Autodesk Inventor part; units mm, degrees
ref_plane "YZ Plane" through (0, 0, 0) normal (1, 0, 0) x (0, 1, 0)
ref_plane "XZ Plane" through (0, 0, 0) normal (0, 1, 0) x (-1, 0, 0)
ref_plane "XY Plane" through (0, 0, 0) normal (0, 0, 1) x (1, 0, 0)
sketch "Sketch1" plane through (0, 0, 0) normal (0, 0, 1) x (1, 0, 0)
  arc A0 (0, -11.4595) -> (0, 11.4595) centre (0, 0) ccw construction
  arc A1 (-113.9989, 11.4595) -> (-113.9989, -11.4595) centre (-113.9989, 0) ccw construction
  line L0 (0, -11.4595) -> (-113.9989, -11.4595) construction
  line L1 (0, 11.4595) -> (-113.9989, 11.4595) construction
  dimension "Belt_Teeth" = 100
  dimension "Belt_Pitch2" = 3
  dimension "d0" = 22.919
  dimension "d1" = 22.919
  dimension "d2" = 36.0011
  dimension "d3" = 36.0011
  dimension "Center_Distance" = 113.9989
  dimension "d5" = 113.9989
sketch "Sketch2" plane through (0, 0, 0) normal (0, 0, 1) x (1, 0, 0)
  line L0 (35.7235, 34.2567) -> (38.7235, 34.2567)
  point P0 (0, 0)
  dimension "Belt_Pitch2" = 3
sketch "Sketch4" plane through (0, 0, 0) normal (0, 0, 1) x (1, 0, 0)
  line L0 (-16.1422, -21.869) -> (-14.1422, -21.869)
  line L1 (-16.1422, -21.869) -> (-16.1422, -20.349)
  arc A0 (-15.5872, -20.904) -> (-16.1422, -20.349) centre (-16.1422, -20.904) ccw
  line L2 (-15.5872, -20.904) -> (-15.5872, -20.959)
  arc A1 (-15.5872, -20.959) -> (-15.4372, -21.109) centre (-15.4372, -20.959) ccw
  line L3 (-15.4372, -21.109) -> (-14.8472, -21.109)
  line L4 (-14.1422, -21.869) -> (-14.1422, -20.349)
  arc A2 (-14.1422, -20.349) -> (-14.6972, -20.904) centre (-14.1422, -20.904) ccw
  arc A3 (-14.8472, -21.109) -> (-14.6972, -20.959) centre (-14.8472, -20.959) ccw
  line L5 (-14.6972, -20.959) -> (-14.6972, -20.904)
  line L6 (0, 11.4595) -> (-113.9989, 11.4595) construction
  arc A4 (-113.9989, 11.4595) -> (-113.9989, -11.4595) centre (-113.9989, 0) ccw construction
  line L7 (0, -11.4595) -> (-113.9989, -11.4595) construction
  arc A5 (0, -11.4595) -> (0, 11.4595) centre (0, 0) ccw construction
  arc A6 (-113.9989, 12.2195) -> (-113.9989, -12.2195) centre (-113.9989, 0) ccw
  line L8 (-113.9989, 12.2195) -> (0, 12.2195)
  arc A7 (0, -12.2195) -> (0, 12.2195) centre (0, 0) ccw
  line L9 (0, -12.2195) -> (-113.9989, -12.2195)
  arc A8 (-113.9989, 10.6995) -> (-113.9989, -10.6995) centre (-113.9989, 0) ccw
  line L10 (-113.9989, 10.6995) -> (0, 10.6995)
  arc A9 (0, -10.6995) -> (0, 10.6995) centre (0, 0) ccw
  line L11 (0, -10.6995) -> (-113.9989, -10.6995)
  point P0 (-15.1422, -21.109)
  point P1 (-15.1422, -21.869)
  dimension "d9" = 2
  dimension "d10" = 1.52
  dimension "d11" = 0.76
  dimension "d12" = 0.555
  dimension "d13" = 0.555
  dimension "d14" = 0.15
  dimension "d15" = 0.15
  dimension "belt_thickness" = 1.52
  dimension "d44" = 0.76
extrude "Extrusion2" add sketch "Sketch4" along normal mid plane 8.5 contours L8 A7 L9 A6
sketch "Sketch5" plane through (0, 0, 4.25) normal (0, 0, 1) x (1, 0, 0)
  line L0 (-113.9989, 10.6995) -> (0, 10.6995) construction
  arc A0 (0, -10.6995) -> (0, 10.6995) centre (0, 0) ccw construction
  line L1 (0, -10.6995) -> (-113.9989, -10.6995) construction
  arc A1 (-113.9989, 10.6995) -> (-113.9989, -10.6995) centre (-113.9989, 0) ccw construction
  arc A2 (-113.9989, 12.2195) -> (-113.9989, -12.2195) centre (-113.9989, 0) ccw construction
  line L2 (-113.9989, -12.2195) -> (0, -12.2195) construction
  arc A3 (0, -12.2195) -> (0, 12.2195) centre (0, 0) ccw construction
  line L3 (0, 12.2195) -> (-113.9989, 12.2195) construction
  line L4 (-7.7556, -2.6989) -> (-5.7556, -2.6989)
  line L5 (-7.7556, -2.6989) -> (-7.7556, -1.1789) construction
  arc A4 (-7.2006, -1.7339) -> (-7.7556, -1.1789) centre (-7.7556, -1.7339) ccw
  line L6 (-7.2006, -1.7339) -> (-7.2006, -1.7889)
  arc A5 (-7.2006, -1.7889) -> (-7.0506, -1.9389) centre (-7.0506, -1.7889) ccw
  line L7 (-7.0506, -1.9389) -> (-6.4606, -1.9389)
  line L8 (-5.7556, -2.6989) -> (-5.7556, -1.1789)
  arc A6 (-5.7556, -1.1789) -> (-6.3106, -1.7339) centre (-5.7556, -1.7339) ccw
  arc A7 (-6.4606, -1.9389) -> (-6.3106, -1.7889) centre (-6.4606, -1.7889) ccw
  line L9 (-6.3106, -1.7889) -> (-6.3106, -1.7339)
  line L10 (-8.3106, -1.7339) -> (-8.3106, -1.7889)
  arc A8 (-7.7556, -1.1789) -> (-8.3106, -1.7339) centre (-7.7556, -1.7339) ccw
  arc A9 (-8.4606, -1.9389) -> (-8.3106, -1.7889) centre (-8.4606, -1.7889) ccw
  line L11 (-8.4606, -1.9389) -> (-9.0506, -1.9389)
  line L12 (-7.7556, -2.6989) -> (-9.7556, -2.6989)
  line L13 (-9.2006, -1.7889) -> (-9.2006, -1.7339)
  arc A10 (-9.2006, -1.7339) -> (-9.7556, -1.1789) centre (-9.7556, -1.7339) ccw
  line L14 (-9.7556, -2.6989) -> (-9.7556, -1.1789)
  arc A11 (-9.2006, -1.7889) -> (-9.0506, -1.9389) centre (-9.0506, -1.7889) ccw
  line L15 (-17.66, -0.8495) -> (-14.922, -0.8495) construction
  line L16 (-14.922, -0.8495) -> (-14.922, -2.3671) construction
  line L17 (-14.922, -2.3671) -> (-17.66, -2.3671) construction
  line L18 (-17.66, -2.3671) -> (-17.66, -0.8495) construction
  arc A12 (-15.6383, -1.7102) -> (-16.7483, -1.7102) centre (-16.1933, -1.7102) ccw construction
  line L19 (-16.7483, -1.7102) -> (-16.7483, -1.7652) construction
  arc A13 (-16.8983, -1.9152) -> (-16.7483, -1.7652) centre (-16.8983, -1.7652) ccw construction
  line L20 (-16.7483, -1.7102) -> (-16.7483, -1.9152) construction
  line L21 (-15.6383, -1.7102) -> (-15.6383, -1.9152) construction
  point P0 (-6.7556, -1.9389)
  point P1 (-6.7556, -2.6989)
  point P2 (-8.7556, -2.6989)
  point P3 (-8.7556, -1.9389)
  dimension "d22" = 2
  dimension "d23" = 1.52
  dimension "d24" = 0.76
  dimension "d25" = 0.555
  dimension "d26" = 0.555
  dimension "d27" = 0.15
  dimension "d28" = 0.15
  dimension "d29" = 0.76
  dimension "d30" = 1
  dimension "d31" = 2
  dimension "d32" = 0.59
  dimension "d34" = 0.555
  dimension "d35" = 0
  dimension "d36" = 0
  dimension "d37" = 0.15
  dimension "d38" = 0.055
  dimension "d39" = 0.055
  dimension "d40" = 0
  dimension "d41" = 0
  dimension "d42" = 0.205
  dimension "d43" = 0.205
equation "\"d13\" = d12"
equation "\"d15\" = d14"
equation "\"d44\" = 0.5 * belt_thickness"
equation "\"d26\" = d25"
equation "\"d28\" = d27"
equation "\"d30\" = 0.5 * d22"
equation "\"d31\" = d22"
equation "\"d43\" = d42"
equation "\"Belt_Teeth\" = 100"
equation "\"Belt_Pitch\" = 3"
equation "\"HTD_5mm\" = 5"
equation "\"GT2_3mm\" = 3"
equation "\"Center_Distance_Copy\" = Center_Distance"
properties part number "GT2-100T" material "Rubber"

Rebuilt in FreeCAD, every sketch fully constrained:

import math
import FreeCAD as App
import Part
import Sketcher
from FreeCAD import Vector
Q = App.Units.Quantity

doc = App.newDocument("Part")
body = doc.addObject("PartDesign::Body", "Body")

# Sketch on XY plane
sketch1 = body.newObject("Sketcher::SketchObject", "Sketch")
sketch1.AttachmentSupport = (doc.getObject("XY_Plane"), [""])
sketch1.MapMode = "FlatFace"
sketch1.addGeometry(Part.LineSegment(Vector(0, 12, 0), Vector(-114, 12, 0)), False)
sketch1.addGeometry(Part.ArcOfCircle(Part.Circle(Vector(-114, 0, 0), Vector(0, 0, 1), 12), math.radians(90), math.radians(270)), False)
sketch1.addGeometry(Part.LineSegment(Vector(-114, -12, 0), Vector(0, -12, 0)), False)
sketch1.addGeometry(Part.ArcOfCircle(Part.Circle(Vector(0, 0, 0), Vector(0, 0, 1), 12), math.radians(-90), math.radians(90)), False)
sketch1.addGeometry(Part.ArcOfCircle(Part.Circle(Vector(-114, 0, 0), Vector(0, 0, 1), 11), math.radians(90), math.radians(270)), False)
sketch1.addGeometry(Part.LineSegment(Vector(-114, 11, 0), Vector(0, 11, 0)), False)
sketch1.addGeometry(Part.ArcOfCircle(Part.Circle(Vector(0, 0, 0), Vector(0, 0, 1), 11), math.radians(-90), math.radians(90)), False)
sketch1.addGeometry(Part.LineSegment(Vector(0, -11, 0), Vector(-114, -11, 0)), False)
sketch1.addConstraint(Sketcher.Constraint("Tangent", 0, 2, 1, 1))
sketch1.addConstraint(Sketcher.Constraint("Tangent", 1, 2, 2, 1))
sketch1.addConstraint(Sketcher.Constraint("Tangent", 2, 2, 3, 1))
sketch1.addConstraint(Sketcher.Constraint("Tangent", 3, 2, 0, 1))
sketch1.addConstraint(Sketcher.Constraint("Tangent", 4, 1, 5, 1))
sketch1.addConstraint(Sketcher.Constraint("Tangent", 5, 2, 6, 2))
sketch1.addConstraint(Sketcher.Constraint("Tangent", 6, 1, 7, 1))
sketch1.addConstraint(Sketcher.Constraint("Tangent", 7, 2, 4, 2))
sketch1.addConstraint(Sketcher.Constraint("Horizontal", 0))
sketch1.addConstraint(Sketcher.Constraint("Horizontal", 2))
sketch1.addConstraint(Sketcher.Constraint("Horizontal", 5))
sketch1.addConstraint(Sketcher.Constraint("Horizontal", 7))
sketch1.addConstraint(Sketcher.Constraint("Coincident", 3, 3, -1, 1))
sketch1.addConstraint(Sketcher.Constraint("Coincident", 6, 3, -1, 1))
sketch1.addConstraint(Sketcher.Constraint("Vertical", 4, 3, 0, 2))
sketch1.addConstraint(Sketcher.Constraint("DistanceY", 4, 1, 0, 2, Q("1.52 mm")))
sketch1.addConstraint(Sketcher.Constraint("Radius", 1, Q("12.2195 mm")))
sketch1.addConstraint(Sketcher.Constraint("DistanceX", 0, 2, 0, 1, Q("113.999 mm")))
pad1 = body.newObject("PartDesign::Pad", "Pad")
pad1.Profile = sketch1
pad1.Length = 8.5
pad1.Midplane = True

doc.recompute()
